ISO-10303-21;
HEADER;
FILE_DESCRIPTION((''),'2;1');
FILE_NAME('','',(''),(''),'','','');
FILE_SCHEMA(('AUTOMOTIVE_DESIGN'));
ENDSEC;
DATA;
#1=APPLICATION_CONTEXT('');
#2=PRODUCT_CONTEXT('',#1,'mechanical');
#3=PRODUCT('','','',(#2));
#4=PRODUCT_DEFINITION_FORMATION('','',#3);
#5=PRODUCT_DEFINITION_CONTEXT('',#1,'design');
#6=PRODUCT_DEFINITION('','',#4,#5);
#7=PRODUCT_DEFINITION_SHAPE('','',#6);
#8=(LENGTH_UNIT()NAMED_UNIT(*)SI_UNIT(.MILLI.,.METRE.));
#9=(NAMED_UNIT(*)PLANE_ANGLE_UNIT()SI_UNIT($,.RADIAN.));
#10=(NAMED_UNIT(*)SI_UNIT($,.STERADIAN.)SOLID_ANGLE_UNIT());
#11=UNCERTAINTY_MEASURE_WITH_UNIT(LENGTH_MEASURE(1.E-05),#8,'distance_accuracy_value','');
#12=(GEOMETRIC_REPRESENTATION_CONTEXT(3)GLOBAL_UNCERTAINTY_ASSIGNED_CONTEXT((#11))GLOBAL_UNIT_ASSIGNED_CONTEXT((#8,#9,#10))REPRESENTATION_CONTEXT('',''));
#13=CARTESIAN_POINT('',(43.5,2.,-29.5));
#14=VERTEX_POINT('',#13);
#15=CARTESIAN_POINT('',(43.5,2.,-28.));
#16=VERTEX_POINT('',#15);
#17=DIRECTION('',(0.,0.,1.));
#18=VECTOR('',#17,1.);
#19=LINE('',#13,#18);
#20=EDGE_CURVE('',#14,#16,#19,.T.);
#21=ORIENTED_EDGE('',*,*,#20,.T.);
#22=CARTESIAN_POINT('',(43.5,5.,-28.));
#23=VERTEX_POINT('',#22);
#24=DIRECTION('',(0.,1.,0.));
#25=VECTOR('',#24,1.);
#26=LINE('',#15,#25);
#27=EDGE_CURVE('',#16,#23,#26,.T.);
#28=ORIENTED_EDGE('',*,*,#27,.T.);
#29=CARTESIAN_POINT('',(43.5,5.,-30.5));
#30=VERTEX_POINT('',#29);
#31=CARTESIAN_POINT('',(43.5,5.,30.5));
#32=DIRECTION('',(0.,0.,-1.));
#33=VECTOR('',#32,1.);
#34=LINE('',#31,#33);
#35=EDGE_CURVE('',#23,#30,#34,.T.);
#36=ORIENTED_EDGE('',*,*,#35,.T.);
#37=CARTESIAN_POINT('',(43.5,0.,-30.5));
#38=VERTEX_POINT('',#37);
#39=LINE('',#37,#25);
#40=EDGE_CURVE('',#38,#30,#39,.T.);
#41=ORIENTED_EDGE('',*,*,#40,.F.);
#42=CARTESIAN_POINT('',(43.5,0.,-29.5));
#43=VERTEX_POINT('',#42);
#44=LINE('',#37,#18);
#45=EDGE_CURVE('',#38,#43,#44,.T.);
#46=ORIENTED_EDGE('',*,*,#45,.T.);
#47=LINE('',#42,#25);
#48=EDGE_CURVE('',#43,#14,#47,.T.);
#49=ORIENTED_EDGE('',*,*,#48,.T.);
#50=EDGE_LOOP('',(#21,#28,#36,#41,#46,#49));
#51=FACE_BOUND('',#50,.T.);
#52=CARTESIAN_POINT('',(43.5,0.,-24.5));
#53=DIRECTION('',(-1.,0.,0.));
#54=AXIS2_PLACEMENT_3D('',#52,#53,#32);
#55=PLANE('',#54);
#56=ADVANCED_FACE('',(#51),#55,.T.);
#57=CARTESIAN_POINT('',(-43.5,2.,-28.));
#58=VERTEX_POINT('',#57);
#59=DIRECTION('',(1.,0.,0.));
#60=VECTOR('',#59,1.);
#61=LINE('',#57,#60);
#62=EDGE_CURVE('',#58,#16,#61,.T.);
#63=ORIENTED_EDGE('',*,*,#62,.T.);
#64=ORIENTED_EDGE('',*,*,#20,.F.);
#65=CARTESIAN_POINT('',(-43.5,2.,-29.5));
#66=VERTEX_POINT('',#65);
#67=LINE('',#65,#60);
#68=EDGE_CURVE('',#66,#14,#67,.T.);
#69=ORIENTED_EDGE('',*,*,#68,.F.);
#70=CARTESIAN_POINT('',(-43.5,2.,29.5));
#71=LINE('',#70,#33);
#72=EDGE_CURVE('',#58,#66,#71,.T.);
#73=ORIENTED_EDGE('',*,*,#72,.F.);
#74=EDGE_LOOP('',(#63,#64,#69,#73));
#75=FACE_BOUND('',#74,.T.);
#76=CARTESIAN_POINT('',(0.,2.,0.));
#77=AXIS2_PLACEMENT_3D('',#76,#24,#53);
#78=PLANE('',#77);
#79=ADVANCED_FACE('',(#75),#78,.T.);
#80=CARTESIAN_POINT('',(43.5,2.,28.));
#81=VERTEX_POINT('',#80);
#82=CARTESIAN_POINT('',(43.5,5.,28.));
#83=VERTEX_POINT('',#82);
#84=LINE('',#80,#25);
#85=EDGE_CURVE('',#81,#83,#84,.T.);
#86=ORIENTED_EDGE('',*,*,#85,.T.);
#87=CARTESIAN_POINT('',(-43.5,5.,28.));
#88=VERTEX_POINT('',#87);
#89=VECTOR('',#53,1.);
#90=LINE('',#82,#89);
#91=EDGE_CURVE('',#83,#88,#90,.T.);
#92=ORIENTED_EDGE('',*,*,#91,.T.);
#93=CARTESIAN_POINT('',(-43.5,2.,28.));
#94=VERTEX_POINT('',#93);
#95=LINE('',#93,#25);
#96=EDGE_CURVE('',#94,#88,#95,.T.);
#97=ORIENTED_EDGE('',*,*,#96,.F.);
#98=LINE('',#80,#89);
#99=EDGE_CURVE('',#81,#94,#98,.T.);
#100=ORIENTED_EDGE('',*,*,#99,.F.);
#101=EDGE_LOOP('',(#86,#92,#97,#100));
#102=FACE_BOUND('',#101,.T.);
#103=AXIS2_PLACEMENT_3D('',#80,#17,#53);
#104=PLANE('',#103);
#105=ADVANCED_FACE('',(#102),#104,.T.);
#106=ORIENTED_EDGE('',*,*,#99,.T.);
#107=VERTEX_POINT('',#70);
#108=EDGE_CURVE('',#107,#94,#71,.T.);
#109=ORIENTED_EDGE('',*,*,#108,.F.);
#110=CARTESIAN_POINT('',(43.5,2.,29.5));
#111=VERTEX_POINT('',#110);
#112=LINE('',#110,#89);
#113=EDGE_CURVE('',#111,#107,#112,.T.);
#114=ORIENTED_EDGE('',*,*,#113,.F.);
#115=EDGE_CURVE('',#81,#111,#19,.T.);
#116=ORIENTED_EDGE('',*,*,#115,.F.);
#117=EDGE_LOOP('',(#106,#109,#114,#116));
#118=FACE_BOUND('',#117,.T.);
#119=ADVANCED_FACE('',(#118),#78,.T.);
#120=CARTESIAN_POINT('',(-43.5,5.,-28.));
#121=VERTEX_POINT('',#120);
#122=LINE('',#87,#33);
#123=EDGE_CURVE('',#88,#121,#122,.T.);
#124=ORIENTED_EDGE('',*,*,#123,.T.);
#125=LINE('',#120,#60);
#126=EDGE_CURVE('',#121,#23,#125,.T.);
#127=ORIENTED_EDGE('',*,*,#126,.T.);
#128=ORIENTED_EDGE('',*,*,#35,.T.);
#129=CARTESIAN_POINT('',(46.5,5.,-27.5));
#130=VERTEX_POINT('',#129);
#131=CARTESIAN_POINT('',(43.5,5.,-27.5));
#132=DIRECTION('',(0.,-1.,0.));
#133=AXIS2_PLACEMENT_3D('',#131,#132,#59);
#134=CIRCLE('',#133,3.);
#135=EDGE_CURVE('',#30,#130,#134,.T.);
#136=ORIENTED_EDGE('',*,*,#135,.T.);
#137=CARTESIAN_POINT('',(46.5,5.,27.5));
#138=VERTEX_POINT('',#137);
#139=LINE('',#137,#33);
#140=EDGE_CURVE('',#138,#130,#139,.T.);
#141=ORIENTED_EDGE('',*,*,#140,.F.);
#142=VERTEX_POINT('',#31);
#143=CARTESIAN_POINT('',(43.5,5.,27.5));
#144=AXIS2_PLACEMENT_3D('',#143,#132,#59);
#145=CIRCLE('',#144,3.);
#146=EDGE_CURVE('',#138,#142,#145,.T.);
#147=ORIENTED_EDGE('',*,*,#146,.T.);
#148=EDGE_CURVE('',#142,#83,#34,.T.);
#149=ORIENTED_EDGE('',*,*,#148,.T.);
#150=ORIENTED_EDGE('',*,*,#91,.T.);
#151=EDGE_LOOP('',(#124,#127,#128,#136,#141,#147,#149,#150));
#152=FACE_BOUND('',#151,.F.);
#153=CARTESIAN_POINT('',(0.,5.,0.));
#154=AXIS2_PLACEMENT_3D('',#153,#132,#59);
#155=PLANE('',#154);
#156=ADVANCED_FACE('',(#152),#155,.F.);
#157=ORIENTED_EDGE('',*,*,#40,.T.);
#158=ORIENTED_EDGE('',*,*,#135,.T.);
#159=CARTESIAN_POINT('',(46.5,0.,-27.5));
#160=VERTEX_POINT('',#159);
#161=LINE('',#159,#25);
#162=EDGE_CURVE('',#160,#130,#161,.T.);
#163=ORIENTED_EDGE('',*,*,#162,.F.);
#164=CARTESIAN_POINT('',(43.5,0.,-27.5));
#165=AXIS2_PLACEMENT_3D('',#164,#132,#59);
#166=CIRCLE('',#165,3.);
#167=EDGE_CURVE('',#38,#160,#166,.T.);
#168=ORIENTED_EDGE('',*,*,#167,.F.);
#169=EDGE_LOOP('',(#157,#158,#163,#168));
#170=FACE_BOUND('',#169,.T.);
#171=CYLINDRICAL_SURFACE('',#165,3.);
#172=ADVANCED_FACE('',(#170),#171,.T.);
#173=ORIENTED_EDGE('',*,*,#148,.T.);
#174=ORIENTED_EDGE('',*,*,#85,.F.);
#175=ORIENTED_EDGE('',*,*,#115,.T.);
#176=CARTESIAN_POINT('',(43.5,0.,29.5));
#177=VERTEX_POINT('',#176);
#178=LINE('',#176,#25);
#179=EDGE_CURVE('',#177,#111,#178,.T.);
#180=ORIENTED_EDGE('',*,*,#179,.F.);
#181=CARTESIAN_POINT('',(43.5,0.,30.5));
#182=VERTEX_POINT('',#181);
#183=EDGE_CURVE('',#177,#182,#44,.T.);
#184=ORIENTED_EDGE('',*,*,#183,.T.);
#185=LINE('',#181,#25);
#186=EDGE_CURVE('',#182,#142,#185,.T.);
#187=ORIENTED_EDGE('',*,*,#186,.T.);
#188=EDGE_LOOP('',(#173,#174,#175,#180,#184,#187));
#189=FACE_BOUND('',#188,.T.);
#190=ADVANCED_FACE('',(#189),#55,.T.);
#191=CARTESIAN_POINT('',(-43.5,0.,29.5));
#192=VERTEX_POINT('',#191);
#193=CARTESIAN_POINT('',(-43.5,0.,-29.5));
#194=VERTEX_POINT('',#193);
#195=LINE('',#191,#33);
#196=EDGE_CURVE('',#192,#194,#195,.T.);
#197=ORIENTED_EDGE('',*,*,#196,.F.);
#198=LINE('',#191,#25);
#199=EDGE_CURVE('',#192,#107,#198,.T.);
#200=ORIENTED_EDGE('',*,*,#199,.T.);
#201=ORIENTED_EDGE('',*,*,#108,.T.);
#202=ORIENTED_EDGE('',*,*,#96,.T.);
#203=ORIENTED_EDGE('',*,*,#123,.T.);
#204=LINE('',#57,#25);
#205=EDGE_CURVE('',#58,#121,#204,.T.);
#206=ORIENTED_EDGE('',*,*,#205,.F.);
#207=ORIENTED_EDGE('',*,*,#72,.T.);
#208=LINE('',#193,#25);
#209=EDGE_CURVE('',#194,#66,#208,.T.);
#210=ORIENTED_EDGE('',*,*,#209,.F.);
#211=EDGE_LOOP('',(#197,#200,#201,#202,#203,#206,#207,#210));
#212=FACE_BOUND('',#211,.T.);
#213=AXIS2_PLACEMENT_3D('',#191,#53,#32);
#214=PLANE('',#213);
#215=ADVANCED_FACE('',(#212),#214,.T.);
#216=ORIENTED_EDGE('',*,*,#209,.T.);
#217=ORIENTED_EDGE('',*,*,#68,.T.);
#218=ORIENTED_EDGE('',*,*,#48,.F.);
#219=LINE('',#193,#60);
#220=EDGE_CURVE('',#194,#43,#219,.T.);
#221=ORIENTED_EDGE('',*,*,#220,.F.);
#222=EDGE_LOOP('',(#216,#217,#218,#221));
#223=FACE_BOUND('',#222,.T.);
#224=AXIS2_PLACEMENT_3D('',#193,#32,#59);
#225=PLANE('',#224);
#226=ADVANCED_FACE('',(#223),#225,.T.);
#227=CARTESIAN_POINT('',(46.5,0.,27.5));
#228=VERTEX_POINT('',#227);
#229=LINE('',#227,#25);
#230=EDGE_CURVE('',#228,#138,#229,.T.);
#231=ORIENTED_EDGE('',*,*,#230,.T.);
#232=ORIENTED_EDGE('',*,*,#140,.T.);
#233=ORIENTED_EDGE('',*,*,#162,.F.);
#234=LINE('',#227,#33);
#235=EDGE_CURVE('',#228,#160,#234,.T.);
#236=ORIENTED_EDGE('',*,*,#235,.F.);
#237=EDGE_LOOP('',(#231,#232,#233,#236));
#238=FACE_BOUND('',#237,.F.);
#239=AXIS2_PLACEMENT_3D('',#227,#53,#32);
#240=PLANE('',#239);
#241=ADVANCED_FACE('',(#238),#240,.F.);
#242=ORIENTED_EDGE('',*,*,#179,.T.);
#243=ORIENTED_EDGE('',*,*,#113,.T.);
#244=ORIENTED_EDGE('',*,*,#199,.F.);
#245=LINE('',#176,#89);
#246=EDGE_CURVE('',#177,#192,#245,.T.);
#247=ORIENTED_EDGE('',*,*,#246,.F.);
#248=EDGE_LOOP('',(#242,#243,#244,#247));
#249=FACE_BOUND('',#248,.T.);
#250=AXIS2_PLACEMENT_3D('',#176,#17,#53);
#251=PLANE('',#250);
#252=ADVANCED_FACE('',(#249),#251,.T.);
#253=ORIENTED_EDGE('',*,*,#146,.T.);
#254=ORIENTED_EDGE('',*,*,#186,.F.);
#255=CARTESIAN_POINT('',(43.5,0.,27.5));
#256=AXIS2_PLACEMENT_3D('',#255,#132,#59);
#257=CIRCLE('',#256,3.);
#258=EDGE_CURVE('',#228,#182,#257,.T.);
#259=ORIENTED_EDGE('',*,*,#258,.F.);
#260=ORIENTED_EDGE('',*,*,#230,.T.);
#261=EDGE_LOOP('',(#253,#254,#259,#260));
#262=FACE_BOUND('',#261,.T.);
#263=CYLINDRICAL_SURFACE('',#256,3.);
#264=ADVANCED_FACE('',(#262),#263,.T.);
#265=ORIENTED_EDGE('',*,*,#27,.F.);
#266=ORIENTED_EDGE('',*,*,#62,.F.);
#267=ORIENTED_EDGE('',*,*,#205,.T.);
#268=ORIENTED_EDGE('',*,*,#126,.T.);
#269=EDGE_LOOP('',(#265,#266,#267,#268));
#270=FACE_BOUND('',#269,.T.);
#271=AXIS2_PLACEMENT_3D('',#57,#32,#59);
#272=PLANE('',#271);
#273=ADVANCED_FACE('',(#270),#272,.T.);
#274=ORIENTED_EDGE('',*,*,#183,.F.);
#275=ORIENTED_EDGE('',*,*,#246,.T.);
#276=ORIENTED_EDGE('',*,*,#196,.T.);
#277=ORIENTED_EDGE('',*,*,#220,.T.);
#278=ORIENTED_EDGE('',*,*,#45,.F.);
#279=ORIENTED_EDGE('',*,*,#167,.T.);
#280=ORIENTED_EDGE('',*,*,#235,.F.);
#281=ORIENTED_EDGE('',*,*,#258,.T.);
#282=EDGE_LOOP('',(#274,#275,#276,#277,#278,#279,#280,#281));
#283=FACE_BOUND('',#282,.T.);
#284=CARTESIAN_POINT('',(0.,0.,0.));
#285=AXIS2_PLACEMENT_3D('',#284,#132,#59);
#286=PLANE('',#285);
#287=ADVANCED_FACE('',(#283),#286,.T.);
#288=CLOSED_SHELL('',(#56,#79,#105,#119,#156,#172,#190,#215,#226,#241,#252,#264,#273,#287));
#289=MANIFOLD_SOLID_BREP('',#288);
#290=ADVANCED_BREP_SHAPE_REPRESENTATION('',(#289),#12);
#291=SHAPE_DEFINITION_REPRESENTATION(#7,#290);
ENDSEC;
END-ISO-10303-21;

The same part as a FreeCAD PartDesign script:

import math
import FreeCAD as App
import Part
import Sketcher


def add_polygon(sketch, points):
    """Adds a closed chain of lines whose ends are joined by coincident constraints."""
    first, n = sketch.GeometryCount, len(points)
    for a, b in zip(points, points[1:] + points[:1]):
        sketch.addGeometry(Part.LineSegment(App.Vector(*a, 0), App.Vector(*b, 0)), False)
    for i in range(n):
        sketch.addConstraint(Sketcher.Constraint("Coincident", first + i, 2, first + (i + 1) % n, 1))

doc = App.newDocument("Part")
body = doc.addObject("PartDesign::Body", "Body")

sketch1 = doc.addObject("Sketcher::SketchObject", "Sketch")
body.addObject(sketch1)
sketch1.AttachmentSupport = (doc.XZ_Plane, [""])
sketch1.MapMode = "FlatFace"
add_polygon(sketch1, [(43.5, -29.5), (-43.5, -29.5), (-43.5, 29.5), (43.5, 29.5)])
sketch1.addConstraint(Sketcher.Constraint("Horizontal", 0))
sketch1.addConstraint(Sketcher.Constraint("Vertical", 1))
sketch1.addConstraint(Sketcher.Constraint("Horizontal", 2))
sketch1.addConstraint(Sketcher.Constraint("Vertical", 3))
sketch1.addConstraint(Sketcher.Constraint("Symmetric", 0, 2, 2, 2, -1, 1))
sketch1.addConstraint(Sketcher.Constraint("DistanceX", 0, 2, 0, 1, 87.0))
sketch1.addConstraint(Sketcher.Constraint("DistanceY", 1, 1, 1, 2, 59.0))
pad1 = doc.addObject("PartDesign::Pad", "Pad")
body.addObject(pad1)
pad1.Profile = sketch1
pad1.Length = 2
pad1.Reversed = True

sketch2 = doc.addObject("Sketcher::SketchObject", "Sketch001")
body.addObject(sketch2)
sketch2.AttachmentSupport = (doc.XZ_Plane, [""])
sketch2.MapMode = "FlatFace"
sketch2.AttachmentOffset = App.Placement(App.Vector(0, 0, -2), App.Rotation())
add_polygon(sketch2, [(-43.5, 28), (43.5, 28), (43.5, -28), (-43.5, -28)])
sketch2.addConstraint(Sketcher.Constraint("Horizontal", 0))
sketch2.addConstraint(Sketcher.Constraint("Vertical", 1))
sketch2.addConstraint(Sketcher.Constraint("Horizontal", 2))
sketch2.addConstraint(Sketcher.Constraint("Vertical", 3))
sketch2.addConstraint(Sketcher.Constraint("Symmetric", 0, 2, 2, 2, -1, 1))
sketch2.addConstraint(Sketcher.Constraint("DistanceX", 0, 1, 0, 2, 87.0))
sketch2.addConstraint(Sketcher.Constraint("DistanceY", 1, 2, 1, 1, 56.0))
pad2 = doc.addObject("PartDesign::Pad", "Pad001")
body.addObject(pad2)
pad2.Profile = sketch2
pad2.Length = 3
pad2.Reversed = True

sketch3 = doc.addObject("Sketcher::SketchObject", "Sketch002")
body.addObject(sketch3)
sketch3.AttachmentSupport = (doc.XZ_Plane, [""])
sketch3.MapMode = "FlatFace"
sketch3.addGeometry(Part.ArcOfCircle(Part.Circle(App.Vector(43.5, -27.5, 0), App.Vector(0, 0, 1), 3), math.radians(-90), math.radians(0)), False)
sketch3.addGeometry(Part.LineSegment(App.Vector(46.5, -27.5, 0), App.Vector(46.5, 27.5, 0)), False)
sketch3.addGeometry(Part.ArcOfCircle(Part.Circle(App.Vector(43.5, 27.5, 0), App.Vector(0, 0, 1), 3), math.radians(0), math.radians(90)), False)
sketch3.addGeometry(Part.LineSegment(App.Vector(43.5, 30.5, 0), App.Vector(43.5, -30.5, 0)), False)
sketch3.addConstraint(Sketcher.Constraint("Tangent", 0, 2, 1, 1))
sketch3.addConstraint(Sketcher.Constraint("Tangent", 1, 2, 2, 1))
sketch3.addConstraint(Sketcher.Constraint("Coincident", 2, 2, 3, 1))
sketch3.addConstraint(Sketcher.Constraint("Coincident", 3, 2, 0, 1))
sketch3.addConstraint(Sketcher.Constraint("Vertical", 1))
sketch3.addConstraint(Sketcher.Constraint("Vertical", 3))
sketch3.addConstraint(Sketcher.Constraint("Equal", 0, 2))
sketch3.addConstraint(Sketcher.Constraint("Vertical", 0, 3, 2, 2))
sketch3.addConstraint(Sketcher.Constraint("Radius", 0, 3.0))
sketch3.addConstraint(Sketcher.Constraint("DistanceY", -1, 1, 2, 2, 30.5))
sketch3.addConstraint(Sketcher.Constraint("DistanceY", 3, 2, -1, 1, 30.5))
sketch3.addConstraint(Sketcher.Constraint("DistanceX", -1, 1, 0, 3, 43.5))
pad3 = doc.addObject("PartDesign::Pad", "Pad002")
body.addObject(pad3)
pad3.Profile = sketch3
pad3.Length = 5
pad3.Reversed = True

doc.recompute()
